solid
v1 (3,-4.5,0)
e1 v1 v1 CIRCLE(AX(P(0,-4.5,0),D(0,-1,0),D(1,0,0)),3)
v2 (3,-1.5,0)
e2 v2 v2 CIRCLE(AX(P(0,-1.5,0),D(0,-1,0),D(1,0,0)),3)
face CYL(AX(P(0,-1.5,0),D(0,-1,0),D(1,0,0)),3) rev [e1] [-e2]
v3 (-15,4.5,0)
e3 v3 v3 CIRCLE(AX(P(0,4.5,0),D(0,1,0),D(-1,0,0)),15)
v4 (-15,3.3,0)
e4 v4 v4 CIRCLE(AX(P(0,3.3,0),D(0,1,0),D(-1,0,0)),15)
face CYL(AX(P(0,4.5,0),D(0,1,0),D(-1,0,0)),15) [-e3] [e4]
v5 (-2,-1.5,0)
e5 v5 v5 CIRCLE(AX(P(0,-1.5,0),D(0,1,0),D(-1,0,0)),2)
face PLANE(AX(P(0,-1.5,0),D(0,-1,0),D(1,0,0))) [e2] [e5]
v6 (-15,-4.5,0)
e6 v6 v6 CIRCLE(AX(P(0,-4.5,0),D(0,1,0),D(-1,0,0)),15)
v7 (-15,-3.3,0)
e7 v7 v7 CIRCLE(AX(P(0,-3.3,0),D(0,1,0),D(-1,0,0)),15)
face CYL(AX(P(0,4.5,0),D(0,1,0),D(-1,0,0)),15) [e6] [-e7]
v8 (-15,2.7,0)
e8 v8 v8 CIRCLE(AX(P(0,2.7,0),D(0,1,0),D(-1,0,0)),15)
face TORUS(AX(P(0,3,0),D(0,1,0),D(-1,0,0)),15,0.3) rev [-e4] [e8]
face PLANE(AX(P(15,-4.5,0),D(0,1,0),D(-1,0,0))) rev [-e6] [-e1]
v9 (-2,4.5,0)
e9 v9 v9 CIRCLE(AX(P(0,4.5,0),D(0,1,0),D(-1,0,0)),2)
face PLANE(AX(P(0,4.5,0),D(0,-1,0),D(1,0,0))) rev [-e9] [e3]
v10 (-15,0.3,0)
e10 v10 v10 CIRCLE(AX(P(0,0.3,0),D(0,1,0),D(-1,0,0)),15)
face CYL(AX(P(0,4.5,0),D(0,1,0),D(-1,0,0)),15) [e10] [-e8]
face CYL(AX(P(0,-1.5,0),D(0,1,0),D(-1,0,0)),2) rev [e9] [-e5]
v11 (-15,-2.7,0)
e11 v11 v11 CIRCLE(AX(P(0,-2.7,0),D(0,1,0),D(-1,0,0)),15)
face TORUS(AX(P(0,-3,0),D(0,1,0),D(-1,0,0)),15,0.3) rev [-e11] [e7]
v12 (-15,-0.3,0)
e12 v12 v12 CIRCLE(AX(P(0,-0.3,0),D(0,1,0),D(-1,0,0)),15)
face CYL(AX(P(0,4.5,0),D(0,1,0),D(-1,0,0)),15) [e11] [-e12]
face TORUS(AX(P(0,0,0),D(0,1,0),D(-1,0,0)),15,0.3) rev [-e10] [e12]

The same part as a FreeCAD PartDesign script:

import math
import FreeCAD as App
import Part
import Sketcher
Q = App.Units.Quantity

doc = App.newDocument("Part")
body = doc.addObject("PartDesign::Body", "Body")

sketch1 = doc.addObject("Sketcher::SketchObject", "Sketch")
body.addObject(sketch1)
sketch1.AttachmentSupport = (doc.XY_Plane, [""])
sketch1.MapMode = "FlatFace"
sketch1.addGeometry(Part.LineSegment(App.Vector(0, 4.5, 0), App.Vector(0, -4.5, 0)), False)
sketch1.addGeometry(Part.LineSegment(App.Vector(0, -4.5, 0), App.Vector(15, -4.5, 0)), False)
sketch1.addGeometry(Part.LineSegment(App.Vector(15, -4.5, 0), App.Vector(15, -3.3, 0)), False)
sketch1.addGeometry(Part.ArcOfCircle(Part.Circle(App.Vector(15, -3, 0), App.Vector(0, 0, 1), 0.3), math.radians(90), math.radians(270)), False)
sketch1.addGeometry(Part.LineSegment(App.Vector(15, -2.7, 0), App.Vector(15, -0.3, 0)), False)
sketch1.addGeometry(Part.ArcOfCircle(Part.Circle(App.Vector(15, 0, 0), App.Vector(0, 0, 1), 0.3), math.radians(90), math.radians(270)), False)
sketch1.addGeometry(Part.LineSegment(App.Vector(15, 0.3, 0), App.Vector(15, 2.7, 0)), False)
sketch1.addGeometry(Part.ArcOfCircle(Part.Circle(App.Vector(15, 3, 0), App.Vector(0, 0, 1), 0.3), math.radians(90), math.radians(270)), False)
sketch1.addGeometry(Part.LineSegment(App.Vector(15, 3.3, 0), App.Vector(15, 4.5, 0)), False)
sketch1.addGeometry(Part.LineSegment(App.Vector(15, 4.5, 0), App.Vector(0, 4.5, 0)), False)
sketch1.addConstraint(Sketcher.Constraint("Coincident", 0, 2, 1, 1))
sketch1.addConstraint(Sketcher.Constraint("Coincident", 1, 2, 2, 1))
sketch1.addConstraint(Sketcher.Constraint("Coincident", 2, 2, 3, 2))
sketch1.addConstraint(Sketcher.Constraint("Coincident", 3, 1, 4, 1))
sketch1.addConstraint(Sketcher.Constraint("Coincident", 4, 2, 5, 2))
sketch1.addConstraint(Sketcher.Constraint("Coincident", 5, 1, 6, 1))
sketch1.addConstraint(Sketcher.Constraint("Coincident", 6, 2, 7, 2))
sketch1.addConstraint(Sketcher.Constraint("Coincident", 7, 1, 8, 1))
sketch1.addConstraint(Sketcher.Constraint("Coincident", 8, 2, 9, 1))
sketch1.addConstraint(Sketcher.Constraint("Coincident", 9, 2, 0, 1))
sketch1.addConstraint(Sketcher.Constraint("Vertical", 0))
sketch1.addConstraint(Sketcher.Constraint("Horizontal", 1))
sketch1.addConstraint(Sketcher.Constraint("Vertical", 2))
sketch1.addConstraint(Sketcher.Constraint("Vertical", 4))
sketch1.addConstraint(Sketcher.Constraint("Vertical", 6))
sketch1.addConstraint(Sketcher.Constraint("Vertical", 8))
sketch1.addConstraint(Sketcher.Constraint("Horizontal", 9))
sketch1.addConstraint(Sketcher.Constraint("Equal", 3, 5))
sketch1.addConstraint(Sketcher.Constraint("Equal", 5, 7))
sketch1.addConstraint(Sketcher.Constraint("Symmetric", 0, 2, 9, 2, -1, 1))
sketch1.addConstraint(Sketcher.Constraint("Symmetric", 3, 3, 7, 3, -1))
sketch1.addConstraint(Sketcher.Constraint("Symmetric", 4, 2, 5, 1, -1))
sketch1.addConstraint(Sketcher.Constraint("Vertical", 3, 3, 5, 3))
sketch1.addConstraint(Sketcher.Constraint("Vertical", 7, 3, 1, 2))
sketch1.addConstraint(Sketcher.Constraint("Vertical", 2, 2, 3, 1))
sketch1.addConstraint(Sketcher.Constraint("Vertical", 6, 2, 7, 1))
sketch1.addConstraint(Sketcher.Constraint("Radius", 3, Q("0.3 mm")))
sketch1.addConstraint(Sketcher.Constraint("DistanceX", 1, 1, 1, 2, Q("15 mm")))
sketch1.addConstraint(Sketcher.Constraint("DistanceY", 0, 2, 0, 1, Q("9 mm")))
sketch1.addConstraint(Sketcher.Constraint("DistanceY", 2, 1, 2, 2, Q("1.2 mm")))
revolution = doc.addObject("PartDesign::Revolution", "Revolution")
body.addObject(revolution)
revolution.Profile = sketch1
revolution.ReferenceAxis = (sketch1, ["V_Axis"])
revolution.Angle = 360

sketch2 = doc.addObject("Sketcher::SketchObject", "Sketch001")
body.addObject(sketch2)
sketch2.AttachmentSupport = (doc.XZ_Plane, [""])
sketch2.MapMode = "FlatFace"
sketch2.AttachmentOffset = App.Placement(App.Vector(0, 0, -4.5), App.Rotation())
sketch2.addGeometry(Part.Circle(App.Vector(0, 0, 0), App.Vector(0, 0, 1), 2), False)
sketch2.addConstraint(Sketcher.Constraint("Coincident", 0, 3, -1, 1))
sketch2.addConstraint(Sketcher.Constraint("Diameter", 0, Q("4 mm")))
pocket1 = doc.addObject("PartDesign::Pocket", "Pocket")
body.addObject(pocket1)
pocket1.Profile = sketch2
pocket1.Length = 6
pocket1.Reversed = True

sketch3 = doc.addObject("Sketcher::SketchObject", "Sketch002")
body.addObject(sketch3)
sketch3.AttachmentSupport = (doc.XZ_Plane, [""])
sketch3.MapMode = "FlatFace"
sketch3.AttachmentOffset = App.Placement(App.Vector(0, 0, 4.5), App.Rotation())
sketch3.addGeometry(Part.Circle(App.Vector(0, 0, 0), App.Vector(0, 0, 1), 3), False)
sketch3.addConstraint(Sketcher.Constraint("Coincident", 0, 3, -1, 1))
sketch3.addConstraint(Sketcher.Constraint("Diameter", 0, Q("6 mm")))
pocket2 = doc.addObject("PartDesign::Pocket", "Pocket001")
body.addObject(pocket2)
pocket2.Profile = sketch3
pocket2.Length = 3

doc.recompute()
